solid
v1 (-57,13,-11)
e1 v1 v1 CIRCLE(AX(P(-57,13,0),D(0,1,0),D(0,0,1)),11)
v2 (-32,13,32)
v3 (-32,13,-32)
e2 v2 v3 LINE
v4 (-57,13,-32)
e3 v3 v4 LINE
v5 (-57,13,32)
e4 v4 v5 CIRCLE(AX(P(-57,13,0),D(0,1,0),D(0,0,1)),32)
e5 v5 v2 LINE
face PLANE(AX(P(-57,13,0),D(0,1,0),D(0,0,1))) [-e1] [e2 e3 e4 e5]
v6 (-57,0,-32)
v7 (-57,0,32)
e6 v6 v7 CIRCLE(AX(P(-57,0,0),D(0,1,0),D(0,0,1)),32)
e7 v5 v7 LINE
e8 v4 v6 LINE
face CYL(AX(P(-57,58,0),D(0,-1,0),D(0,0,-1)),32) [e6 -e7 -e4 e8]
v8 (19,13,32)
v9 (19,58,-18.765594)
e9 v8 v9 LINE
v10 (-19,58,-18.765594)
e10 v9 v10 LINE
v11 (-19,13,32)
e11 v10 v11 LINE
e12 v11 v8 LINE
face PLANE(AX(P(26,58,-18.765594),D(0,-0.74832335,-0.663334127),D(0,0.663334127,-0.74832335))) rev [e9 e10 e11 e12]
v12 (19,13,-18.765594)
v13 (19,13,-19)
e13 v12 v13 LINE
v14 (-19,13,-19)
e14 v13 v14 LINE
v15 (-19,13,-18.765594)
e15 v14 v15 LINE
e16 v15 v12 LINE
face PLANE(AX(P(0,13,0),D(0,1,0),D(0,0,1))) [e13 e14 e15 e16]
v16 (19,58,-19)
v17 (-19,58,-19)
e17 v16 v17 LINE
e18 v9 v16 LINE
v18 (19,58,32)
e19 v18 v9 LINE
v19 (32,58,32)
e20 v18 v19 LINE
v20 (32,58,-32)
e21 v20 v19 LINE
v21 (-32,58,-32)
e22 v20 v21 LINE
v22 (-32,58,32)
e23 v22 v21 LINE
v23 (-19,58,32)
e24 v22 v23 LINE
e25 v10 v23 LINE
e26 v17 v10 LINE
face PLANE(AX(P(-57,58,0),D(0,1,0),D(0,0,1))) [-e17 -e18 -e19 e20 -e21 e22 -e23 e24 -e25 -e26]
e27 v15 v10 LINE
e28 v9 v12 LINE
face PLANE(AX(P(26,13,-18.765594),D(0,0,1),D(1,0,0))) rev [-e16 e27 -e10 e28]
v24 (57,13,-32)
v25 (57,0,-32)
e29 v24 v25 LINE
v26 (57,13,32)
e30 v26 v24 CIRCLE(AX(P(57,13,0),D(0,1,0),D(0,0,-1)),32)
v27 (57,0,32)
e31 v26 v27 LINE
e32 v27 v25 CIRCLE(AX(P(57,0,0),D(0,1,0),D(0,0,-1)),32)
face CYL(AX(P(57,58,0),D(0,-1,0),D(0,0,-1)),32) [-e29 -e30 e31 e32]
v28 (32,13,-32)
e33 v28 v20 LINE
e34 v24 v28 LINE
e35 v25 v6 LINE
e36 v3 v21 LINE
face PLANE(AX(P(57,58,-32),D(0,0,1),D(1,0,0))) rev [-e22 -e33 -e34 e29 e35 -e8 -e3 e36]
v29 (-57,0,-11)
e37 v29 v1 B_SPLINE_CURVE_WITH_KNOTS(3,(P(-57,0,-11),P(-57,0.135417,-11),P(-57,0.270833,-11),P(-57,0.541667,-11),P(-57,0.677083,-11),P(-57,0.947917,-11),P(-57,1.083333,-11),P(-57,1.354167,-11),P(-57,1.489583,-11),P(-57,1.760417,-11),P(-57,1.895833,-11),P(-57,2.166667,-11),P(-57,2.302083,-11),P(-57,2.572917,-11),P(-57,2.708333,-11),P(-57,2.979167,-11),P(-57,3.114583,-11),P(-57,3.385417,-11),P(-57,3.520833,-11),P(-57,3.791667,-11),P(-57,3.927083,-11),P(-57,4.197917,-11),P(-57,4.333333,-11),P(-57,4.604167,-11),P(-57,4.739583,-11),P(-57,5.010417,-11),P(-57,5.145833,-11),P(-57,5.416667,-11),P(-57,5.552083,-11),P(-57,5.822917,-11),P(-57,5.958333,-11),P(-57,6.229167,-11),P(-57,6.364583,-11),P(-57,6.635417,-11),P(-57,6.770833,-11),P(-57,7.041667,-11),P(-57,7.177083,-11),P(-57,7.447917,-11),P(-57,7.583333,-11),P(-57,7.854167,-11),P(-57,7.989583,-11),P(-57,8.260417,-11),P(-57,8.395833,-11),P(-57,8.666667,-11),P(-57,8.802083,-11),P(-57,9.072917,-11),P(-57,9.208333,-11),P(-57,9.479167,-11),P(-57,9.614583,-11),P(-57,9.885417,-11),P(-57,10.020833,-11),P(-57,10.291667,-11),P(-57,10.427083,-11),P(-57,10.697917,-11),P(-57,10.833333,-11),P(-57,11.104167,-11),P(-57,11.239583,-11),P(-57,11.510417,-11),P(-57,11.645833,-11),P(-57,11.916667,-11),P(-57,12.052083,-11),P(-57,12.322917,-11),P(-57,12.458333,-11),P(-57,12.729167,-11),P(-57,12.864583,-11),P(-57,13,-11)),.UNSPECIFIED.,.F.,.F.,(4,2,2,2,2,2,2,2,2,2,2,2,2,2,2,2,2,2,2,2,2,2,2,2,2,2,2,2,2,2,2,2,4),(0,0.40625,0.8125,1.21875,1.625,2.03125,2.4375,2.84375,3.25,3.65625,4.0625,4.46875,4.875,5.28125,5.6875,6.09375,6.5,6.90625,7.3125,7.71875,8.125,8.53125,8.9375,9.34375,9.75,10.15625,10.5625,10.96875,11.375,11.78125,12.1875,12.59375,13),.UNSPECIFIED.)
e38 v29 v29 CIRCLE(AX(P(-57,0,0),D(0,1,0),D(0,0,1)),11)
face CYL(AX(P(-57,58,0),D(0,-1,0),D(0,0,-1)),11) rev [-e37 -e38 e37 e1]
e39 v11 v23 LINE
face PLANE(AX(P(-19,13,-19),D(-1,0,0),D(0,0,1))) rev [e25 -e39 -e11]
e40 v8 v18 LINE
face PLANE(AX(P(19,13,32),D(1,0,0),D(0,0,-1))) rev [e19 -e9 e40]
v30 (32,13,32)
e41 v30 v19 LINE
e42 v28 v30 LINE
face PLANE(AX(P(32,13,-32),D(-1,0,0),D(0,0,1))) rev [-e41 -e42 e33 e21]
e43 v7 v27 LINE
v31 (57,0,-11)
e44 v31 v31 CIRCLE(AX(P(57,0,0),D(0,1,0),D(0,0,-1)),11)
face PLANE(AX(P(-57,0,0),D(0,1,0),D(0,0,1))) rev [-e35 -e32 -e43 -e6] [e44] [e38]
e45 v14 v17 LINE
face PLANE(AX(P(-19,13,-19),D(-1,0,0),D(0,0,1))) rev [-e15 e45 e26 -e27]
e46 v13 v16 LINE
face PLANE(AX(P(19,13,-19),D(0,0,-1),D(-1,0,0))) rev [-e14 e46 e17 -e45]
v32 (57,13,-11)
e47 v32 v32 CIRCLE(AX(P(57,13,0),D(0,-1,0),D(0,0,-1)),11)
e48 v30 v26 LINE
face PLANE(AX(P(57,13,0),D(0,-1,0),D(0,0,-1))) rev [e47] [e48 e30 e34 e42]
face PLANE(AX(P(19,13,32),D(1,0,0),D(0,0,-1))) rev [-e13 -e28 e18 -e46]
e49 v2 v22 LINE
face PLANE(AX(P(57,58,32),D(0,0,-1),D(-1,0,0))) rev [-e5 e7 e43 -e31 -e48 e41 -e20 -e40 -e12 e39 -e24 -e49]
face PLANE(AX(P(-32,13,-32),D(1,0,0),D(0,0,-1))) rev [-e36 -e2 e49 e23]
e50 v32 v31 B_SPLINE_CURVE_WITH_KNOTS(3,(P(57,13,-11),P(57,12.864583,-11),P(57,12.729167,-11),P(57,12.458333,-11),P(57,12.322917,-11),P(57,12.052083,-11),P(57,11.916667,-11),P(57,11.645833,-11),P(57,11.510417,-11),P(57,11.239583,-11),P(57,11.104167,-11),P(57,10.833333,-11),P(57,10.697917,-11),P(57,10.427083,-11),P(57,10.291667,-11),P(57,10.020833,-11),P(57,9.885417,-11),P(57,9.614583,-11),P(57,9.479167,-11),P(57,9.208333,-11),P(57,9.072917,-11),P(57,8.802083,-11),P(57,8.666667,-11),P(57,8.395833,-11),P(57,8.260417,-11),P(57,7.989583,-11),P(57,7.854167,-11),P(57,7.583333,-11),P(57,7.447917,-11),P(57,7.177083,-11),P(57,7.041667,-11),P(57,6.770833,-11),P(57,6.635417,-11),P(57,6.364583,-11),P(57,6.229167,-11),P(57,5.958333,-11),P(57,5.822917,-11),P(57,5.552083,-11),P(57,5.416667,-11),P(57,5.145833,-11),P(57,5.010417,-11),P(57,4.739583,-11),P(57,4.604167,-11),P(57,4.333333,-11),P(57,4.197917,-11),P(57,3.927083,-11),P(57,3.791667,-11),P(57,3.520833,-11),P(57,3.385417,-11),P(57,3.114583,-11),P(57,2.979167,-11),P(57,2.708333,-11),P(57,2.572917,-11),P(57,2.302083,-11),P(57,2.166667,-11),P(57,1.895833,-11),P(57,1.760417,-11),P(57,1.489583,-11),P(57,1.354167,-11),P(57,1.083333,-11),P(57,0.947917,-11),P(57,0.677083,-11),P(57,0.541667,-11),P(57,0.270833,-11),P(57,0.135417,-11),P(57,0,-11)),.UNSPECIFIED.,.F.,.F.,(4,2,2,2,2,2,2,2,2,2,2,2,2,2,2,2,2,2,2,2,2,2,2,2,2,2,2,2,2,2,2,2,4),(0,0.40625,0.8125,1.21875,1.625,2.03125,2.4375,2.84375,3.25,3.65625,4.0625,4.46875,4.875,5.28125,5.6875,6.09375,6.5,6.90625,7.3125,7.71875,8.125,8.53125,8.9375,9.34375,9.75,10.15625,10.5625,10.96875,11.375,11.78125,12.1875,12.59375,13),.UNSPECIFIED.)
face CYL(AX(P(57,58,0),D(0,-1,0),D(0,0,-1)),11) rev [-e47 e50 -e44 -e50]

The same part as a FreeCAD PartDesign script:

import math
import FreeCAD as App
import Part
import Sketcher

V = App.Vector
Q = App.Units.Quantity

doc = App.newDocument("Part")
body = doc.addObject("PartDesign::Body", "Body")

sketch1 = body.newObject("Sketcher::SketchObject", "Sketch")
sketch1.AttachmentSupport = (doc.getObject("XZ_Plane"), [""])
sketch1.MapMode = "FlatFace"
sketch1.addGeometry([
    Part.LineSegment(V(57, -32, 0), V(-57, -32, 0)),
    Part.ArcOfCircle(Part.Circle(V(-57, 0, 0), V(0, 0, 1), 32), math.radians(90), math.radians(270)),
    Part.LineSegment(V(-57, 32, 0), V(57, 32, 0)),
    Part.ArcOfCircle(Part.Circle(V(57, 0, 0), V(0, 0, 1), 32), math.radians(-90), math.radians(90)),
    Part.Circle(V(-57, 0, 0), V(0, 0, 1), 11),
    Part.Circle(V(57, 0, 0), V(0, 0, 1), 11),
], False)
sketch1.addConstraint([
    Sketcher.Constraint("Tangent", 0, 2, 1, 2),
    Sketcher.Constraint("Tangent", 1, 1, 2, 1),
    Sketcher.Constraint("Tangent", 2, 2, 3, 2),
    Sketcher.Constraint("Tangent", 3, 1, 0, 1),
    Sketcher.Constraint("Horizontal", 0),
    Sketcher.Constraint("Horizontal", 2),
    Sketcher.Constraint("Coincident", 4, 3, 1, 3),
    Sketcher.Constraint("Coincident", 5, 3, 3, 3),
    Sketcher.Constraint("Equal", 4, 5),
    Sketcher.Constraint("Symmetric", 1, 3, 3, 3, -1, 1),
    Sketcher.Constraint("Diameter", 4, Q("22 mm")),
    Sketcher.Constraint("Radius", 1, Q("32 mm")),
    Sketcher.Constraint("DistanceX", 0, 2, 0, 1, Q("114 mm")),
])
pad1 = body.newObject("PartDesign::Pad", "Pad")
pad1.Profile = sketch1
pad1.Length = 58
pad1.Reversed = True

sketch2 = body.newObject("Sketcher::SketchObject", "Sketch001")
sketch2.AttachmentSupport = (doc.getObject("XZ_Plane"), [""])
sketch2.MapMode = "FlatFace"
sketch2.AttachmentOffset = App.Placement(V(0, 0, -13), App.Rotation())
sketch2.addGeometry([
    Part.LineSegment(V(-32, 32, 0), V(-32, -32, 0)),
    Part.LineSegment(V(-32, -32, 0), V(-57, -32, 0)),
    Part.ArcOfCircle(Part.Circle(V(-57, 0, 0), V(0, 0, 1), 32), math.radians(90), math.radians(270)),
    Part.LineSegment(V(-57, 32, 0), V(-32, 32, 0)),
    Part.LineSegment(V(32, -32, 0), V(32, 32, 0)),
    Part.LineSegment(V(32, 32, 0), V(57, 32, 0)),
    Part.ArcOfCircle(Part.Circle(V(57, 0, 0), V(0, 0, 1), 32), math.radians(-90), math.radians(90)),
    Part.LineSegment(V(57, -32, 0), V(32, -32, 0)),
], False)
sketch2.addConstraint([
    Sketcher.Constraint("Coincident", 0, 2, 1, 1),
    Sketcher.Constraint("Tangent", 1, 2, 2, 2),
    Sketcher.Constraint("Tangent", 2, 1, 3, 1),
    Sketcher.Constraint("Coincident", 3, 2, 0, 1),
    Sketcher.Constraint("Coincident", 4, 2, 5, 1),
    Sketcher.Constraint("Tangent", 5, 2, 6, 2),
    Sketcher.Constraint("Tangent", 6, 1, 7, 1),
    Sketcher.Constraint("Coincident", 7, 2, 4, 1),
    Sketcher.Constraint("Vertical", 0),
    Sketcher.Constraint("Horizontal", 1),
    Sketcher.Constraint("Horizontal", 3),
    Sketcher.Constraint("Vertical", 4),
    Sketcher.Constraint("Horizontal", 5),
    Sketcher.Constraint("Horizontal", 7),
    Sketcher.Constraint("Equal", 2, 6),
    Sketcher.Constraint("Symmetric", 2, 3, 6, 3, -1, 1),
    Sketcher.Constraint("Symmetric", 3, 2, 4, 2, -2),
    Sketcher.Constraint("Radius", 2, Q("32 mm")),
    Sketcher.Constraint("DistanceX", 1, 2, 1, 1, Q("25 mm")),
    Sketcher.Constraint("DistanceX", 2, 3, -1, 1, Q("57 mm")),
])
pocket1 = body.newObject("PartDesign::Pocket", "Pocket")
pocket1.Profile = sketch2
pocket1.Length = 45

sketch3 = body.newObject("Sketcher::SketchObject", "Sketch002")
sketch3.AttachmentSupport = (doc.getObject("XZ_Plane"), [""])
sketch3.MapMode = "FlatFace"
sketch3.AttachmentOffset = App.Placement(V(0, 0, -58), App.Rotation())
sketch3.addGeometry([
    Part.LineSegment(V(-19, -19, 0), V(-19, 32, 0)),
    Part.LineSegment(V(-19, 32, 0), V(19, 32, 0)),
    Part.LineSegment(V(19, 32, 0), V(19, -19, 0)),
    Part.LineSegment(V(19, -19, 0), V(-19, -19, 0)),
], False)
sketch3.addConstraint([
    Sketcher.Constraint("Coincident", 0, 2, 1, 1),
    Sketcher.Constraint("Coincident", 1, 2, 2, 1),
    Sketcher.Constraint("Coincident", 2, 2, 3, 1),
    Sketcher.Constraint("Coincident", 3, 2, 0, 1),
    Sketcher.Constraint("Vertical", 0),
    Sketcher.Constraint("Horizontal", 1),
    Sketcher.Constraint("Vertical", 2),
    Sketcher.Constraint("Horizontal", 3),
    Sketcher.Constraint("DistanceX", 1, 1, 1, 2, Q("38 mm")),
    Sketcher.Constraint("DistanceY", 0, 1, 0, 2, Q("51 mm")),
    Sketcher.Constraint("DistanceX", 0, 2, -1, 1, Q("19 mm")),
    Sketcher.Constraint("DistanceY", -1, 1, 0, 2, Q("32 mm")),
])
pocket2 = body.newObject("PartDesign::Pocket", "Pocket001")
pocket2.Profile = sketch3
pocket2.Length = 45
pocket2.Reversed = True

sketch4 = body.newObject("Sketcher::SketchObject", "Sketch003")
sketch4.AttachmentSupport = (doc.getObject("YZ_Plane"), [""])
sketch4.MapMode = "FlatFace"
sketch4.AttachmentOffset = App.Placement(V(0, 0, -19), App.Rotation())
sketch4.addGeometry([
    Part.LineSegment(V(58, -19, 0), V(13, 32, 0)),
    Part.LineSegment(V(13, 32, 0), V(13, -19, 0)),
    Part.LineSegment(V(13, -19, 0), V(58, -19, 0)),
], False)
sketch4.addConstraint([
    Sketcher.Constraint("Coincident", 0, 2, 1, 1),
    Sketcher.Constraint("Coincident", 1, 2, 2, 1),
    Sketcher.Constraint("Coincident", 2, 2, 0, 1),
    Sketcher.Constraint("Vertical", 1),
    Sketcher.Constraint("Horizontal", 2),
    Sketcher.Constraint("DistanceX", 2, 1, 2, 2, Q("45 mm")),
    Sketcher.Constraint("DistanceX", -1, 1, 0, 2, Q("13 mm")),
    Sketcher.Constraint("DistanceY", -1, 1, 0, 2, Q("32 mm")),
    Sketcher.Constraint("DistanceY", 1, 2, 1, 1, Q("50.765594 mm")),
])
pad2 = body.newObject("PartDesign::Pad", "Pad001")
pad2.Profile = sketch4
pad2.Length = 45

doc.recompute()
